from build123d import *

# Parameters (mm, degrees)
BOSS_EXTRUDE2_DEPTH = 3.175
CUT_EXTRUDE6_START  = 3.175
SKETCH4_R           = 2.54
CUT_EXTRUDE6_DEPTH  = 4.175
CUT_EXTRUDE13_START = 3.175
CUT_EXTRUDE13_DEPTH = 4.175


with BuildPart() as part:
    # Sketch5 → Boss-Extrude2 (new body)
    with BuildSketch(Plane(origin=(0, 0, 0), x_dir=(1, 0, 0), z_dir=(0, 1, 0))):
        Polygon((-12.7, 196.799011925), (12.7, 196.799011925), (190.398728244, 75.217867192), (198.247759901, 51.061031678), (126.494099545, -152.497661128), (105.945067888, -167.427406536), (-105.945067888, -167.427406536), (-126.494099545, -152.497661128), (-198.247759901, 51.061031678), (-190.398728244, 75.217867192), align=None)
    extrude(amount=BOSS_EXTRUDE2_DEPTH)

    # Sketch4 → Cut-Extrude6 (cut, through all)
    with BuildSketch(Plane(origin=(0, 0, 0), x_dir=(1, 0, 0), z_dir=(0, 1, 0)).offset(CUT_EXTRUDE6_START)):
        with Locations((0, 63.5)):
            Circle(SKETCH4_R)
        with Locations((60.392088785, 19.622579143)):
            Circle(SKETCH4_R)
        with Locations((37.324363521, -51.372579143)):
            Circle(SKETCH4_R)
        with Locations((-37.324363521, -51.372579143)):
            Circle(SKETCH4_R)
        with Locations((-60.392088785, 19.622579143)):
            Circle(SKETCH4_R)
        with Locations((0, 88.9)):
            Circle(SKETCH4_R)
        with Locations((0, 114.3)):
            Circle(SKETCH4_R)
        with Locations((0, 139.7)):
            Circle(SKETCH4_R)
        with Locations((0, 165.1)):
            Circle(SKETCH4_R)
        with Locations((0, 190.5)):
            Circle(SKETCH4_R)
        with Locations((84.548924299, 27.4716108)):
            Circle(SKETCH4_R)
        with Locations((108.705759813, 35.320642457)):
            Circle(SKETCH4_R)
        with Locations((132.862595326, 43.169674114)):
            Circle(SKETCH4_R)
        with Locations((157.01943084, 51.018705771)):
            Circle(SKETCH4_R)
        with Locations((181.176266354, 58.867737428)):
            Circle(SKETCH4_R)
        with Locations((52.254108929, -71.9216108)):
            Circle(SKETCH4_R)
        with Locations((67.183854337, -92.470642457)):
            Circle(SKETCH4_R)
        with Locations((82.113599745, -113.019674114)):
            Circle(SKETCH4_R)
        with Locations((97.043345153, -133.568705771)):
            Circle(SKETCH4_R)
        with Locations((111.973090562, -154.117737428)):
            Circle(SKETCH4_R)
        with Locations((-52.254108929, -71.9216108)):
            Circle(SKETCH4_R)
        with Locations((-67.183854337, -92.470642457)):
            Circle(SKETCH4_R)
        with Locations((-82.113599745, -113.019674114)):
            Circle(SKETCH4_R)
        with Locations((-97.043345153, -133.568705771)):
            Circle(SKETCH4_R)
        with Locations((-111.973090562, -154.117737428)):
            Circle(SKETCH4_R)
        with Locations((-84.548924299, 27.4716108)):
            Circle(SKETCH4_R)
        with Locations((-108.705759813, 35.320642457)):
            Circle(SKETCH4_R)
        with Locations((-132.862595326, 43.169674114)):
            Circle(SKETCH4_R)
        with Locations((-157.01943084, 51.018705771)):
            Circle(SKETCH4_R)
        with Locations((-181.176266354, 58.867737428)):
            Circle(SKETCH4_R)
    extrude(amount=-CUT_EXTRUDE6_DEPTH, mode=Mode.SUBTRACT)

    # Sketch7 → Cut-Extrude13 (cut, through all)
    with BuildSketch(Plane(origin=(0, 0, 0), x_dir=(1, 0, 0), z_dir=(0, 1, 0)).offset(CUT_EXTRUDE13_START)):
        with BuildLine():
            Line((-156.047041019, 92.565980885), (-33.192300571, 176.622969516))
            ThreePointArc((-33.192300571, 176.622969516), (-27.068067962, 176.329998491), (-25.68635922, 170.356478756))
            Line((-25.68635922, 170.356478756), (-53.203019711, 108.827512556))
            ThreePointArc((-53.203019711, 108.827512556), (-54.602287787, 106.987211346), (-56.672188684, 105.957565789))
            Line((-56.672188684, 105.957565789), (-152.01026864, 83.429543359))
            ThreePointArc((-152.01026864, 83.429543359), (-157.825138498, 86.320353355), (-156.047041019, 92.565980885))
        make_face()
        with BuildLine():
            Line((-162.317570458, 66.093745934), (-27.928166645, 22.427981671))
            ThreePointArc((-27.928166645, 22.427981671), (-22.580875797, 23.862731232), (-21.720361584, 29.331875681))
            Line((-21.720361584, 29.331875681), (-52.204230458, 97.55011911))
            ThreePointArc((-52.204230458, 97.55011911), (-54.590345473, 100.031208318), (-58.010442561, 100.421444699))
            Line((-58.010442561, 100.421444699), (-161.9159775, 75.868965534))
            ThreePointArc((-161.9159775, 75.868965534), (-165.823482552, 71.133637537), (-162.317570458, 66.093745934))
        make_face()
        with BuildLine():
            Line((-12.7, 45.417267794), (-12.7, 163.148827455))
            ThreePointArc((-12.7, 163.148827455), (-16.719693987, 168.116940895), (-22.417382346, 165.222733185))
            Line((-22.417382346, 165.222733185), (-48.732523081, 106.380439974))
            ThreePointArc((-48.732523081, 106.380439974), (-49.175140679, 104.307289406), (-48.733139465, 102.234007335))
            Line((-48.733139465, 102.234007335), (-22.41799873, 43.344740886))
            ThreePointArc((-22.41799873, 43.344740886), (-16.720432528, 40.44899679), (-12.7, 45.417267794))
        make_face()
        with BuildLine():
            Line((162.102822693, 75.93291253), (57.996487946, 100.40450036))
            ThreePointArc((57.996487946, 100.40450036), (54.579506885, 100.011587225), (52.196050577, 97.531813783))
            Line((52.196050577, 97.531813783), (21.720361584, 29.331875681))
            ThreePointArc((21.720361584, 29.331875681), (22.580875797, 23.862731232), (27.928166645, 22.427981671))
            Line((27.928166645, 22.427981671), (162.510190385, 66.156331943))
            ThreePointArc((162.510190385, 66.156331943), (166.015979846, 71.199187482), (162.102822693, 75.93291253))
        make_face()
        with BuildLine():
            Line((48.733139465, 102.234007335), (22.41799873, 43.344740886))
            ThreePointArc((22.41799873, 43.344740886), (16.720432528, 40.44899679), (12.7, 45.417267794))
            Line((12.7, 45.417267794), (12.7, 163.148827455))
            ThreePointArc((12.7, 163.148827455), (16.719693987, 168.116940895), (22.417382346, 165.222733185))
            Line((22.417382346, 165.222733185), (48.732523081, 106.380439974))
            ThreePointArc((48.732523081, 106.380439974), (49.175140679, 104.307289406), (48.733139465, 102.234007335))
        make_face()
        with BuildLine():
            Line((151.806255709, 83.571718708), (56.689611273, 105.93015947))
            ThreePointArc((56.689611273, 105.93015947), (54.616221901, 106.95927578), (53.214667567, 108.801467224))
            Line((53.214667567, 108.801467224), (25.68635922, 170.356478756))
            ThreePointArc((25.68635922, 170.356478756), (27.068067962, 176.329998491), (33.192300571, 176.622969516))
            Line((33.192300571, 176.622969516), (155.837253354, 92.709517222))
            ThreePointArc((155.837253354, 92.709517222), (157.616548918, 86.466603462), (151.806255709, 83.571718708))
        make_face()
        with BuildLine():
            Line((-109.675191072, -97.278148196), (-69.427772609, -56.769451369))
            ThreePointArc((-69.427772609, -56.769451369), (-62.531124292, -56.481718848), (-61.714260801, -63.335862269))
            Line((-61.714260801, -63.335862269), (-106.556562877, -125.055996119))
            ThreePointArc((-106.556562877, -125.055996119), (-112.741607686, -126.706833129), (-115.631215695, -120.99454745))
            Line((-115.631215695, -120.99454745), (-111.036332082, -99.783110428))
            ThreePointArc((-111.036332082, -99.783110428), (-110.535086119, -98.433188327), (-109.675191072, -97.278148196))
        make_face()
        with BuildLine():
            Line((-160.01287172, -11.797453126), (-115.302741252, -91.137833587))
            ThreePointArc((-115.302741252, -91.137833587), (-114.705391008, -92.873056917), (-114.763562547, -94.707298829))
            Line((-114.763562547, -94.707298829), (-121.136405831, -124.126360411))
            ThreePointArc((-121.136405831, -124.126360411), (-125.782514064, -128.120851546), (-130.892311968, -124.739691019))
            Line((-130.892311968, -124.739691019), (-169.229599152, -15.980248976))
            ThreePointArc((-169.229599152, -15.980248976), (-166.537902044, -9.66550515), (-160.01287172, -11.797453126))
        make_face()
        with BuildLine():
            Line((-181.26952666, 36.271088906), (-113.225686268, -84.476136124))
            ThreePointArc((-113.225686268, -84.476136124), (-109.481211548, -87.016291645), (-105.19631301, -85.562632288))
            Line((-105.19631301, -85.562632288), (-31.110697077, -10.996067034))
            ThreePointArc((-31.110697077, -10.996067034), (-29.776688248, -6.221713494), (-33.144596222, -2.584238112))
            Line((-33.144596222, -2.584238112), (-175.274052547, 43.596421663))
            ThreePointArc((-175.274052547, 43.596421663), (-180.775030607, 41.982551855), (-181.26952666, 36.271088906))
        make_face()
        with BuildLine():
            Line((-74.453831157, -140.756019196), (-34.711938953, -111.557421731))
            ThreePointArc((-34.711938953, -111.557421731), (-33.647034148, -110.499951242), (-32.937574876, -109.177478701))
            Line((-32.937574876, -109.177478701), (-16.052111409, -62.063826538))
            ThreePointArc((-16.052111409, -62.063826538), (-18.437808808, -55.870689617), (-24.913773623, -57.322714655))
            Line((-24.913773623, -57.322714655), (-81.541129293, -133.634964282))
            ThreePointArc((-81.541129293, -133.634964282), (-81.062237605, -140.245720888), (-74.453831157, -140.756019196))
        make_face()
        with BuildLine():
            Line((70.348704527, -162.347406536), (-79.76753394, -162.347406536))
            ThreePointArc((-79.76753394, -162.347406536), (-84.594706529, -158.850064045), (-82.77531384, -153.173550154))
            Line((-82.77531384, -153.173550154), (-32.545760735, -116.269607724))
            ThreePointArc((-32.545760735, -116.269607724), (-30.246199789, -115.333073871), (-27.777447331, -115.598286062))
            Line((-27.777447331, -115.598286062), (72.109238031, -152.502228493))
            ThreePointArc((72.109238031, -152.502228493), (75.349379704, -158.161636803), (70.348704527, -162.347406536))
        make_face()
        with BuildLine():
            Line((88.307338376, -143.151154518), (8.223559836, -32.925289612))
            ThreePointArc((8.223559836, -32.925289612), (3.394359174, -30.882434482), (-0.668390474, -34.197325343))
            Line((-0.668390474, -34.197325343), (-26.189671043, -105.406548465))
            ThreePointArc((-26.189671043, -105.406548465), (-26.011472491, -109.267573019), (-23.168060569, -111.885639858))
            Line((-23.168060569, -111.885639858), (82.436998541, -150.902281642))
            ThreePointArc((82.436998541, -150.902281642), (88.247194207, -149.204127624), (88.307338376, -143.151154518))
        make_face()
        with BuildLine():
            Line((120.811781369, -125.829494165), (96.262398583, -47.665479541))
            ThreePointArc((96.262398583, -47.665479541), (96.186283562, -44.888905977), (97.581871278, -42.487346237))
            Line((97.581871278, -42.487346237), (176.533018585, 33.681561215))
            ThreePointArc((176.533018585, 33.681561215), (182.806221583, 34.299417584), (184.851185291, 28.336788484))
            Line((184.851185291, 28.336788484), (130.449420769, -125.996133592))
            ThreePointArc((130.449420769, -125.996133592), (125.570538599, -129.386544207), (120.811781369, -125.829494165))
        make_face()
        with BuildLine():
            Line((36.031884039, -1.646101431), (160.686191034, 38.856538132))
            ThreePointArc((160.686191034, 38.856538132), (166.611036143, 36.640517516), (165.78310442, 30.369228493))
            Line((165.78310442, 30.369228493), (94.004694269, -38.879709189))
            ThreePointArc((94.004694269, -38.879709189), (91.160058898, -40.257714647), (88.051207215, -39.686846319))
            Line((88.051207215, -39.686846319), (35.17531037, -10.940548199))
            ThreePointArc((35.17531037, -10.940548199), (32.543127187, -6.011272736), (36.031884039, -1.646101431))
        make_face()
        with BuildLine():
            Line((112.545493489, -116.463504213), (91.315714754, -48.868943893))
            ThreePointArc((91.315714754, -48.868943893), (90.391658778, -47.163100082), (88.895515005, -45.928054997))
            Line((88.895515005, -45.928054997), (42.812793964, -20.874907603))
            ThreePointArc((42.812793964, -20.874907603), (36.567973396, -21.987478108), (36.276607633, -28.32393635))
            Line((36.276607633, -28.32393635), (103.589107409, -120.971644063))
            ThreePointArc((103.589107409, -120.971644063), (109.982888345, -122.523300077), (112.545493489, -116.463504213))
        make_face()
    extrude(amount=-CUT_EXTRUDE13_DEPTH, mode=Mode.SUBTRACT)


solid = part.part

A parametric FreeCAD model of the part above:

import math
import FreeCAD as App
import Part
import Sketcher

V = App.Vector
Q = App.Units.Quantity

doc = App.newDocument("Part")
body = doc.addObject("PartDesign::Body", "Body")

# Sketch on XZ plane
sketch1 = body.newObject("Sketcher::SketchObject", "Sketch")
sketch1.AttachmentSupport = (doc.getObject("XZ_Plane"), [""])
sketch1.MapMode = "FlatFace"
sketch1.addGeometry([
    Part.LineSegment(V(13, -197, 0), V(-13, -197, 0)),  # 0
    Part.LineSegment(V(-13, -197, 0), V(-190, -75, 0)),  # 1
    Part.LineSegment(V(-190, -75, 0), V(-198, -51, 0)),  # 2
    Part.LineSegment(V(-198, -51, 0), V(-126, 152, 0)),  # 3
    Part.LineSegment(V(-126, 152, 0), V(-106, 167, 0)),  # 4
    Part.LineSegment(V(-106, 167, 0), V(106, 167, 0)),  # 5
    Part.LineSegment(V(106, 167, 0), V(126, 152, 0)),  # 6
    Part.LineSegment(V(126, 152, 0), V(198, -51, 0)),  # 7
    Part.LineSegment(V(198, -51, 0), V(190, -75, 0)),  # 8
    Part.LineSegment(V(190, -75, 0), V(13, -197, 0)),  # 9
], False)
sketch1.addConstraint([
    Sketcher.Constraint("Coincident", 0, 2, 1, 1),
    Sketcher.Constraint("Coincident", 1, 2, 2, 1),
    Sketcher.Constraint("Coincident", 2, 2, 3, 1),
    Sketcher.Constraint("Coincident", 3, 2, 4, 1),
    Sketcher.Constraint("Coincident", 4, 2, 5, 1),
    Sketcher.Constraint("Coincident", 5, 2, 6, 1),
    Sketcher.Constraint("Coincident", 6, 2, 7, 1),
    Sketcher.Constraint("Coincident", 7, 2, 8, 1),
    Sketcher.Constraint("Coincident", 8, 2, 9, 1),
    Sketcher.Constraint("Coincident", 9, 2, 0, 1),
    Sketcher.Constraint("Horizontal", 0),
    Sketcher.Constraint("Horizontal", 5),
    Sketcher.Constraint("Symmetric", 3, 2, 6, 2, -2),
    Sketcher.Constraint("Symmetric", 2, 2, 7, 2, -2),
    Sketcher.Constraint("Symmetric", 1, 2, 8, 2, -2),
    Sketcher.Constraint("Equal", 2, 4),
    Sketcher.Constraint("Equal", 4, 6),
    Sketcher.Constraint("Equal", 1, 9),
    Sketcher.Constraint("DistanceX", 0, 2, 0, 1, Q("1 in")),
    Sketcher.Constraint("Distance", 2, Q("1 in")),
    Sketcher.Constraint("Angle", 2, Q("108 deg")),
    Sketcher.Constraint("Angle", 4, Q("36 deg")),
    Sketcher.Constraint("DistanceX", 3, 2, -1, 1, Q("126.4941 mm")),
    Sketcher.Constraint("Distance", 3, Q("215.834958 mm")),
    Sketcher.Constraint("DistanceY", 0, 2, -1, 1, Q("196.799012 mm")),
    Sketcher.Constraint("DistanceX", 1, 2, -1, 1, Q("190.398728 mm")),
    Sketcher.Constraint("DistanceY", 2, 2, -1, 1, Q("51.061032 mm")),
])
pad1 = body.newObject("PartDesign::Pad", "Pad")
pad1.Profile = sketch1
pad1.Length = Q("0.125 in")
pad1.Reversed = True

# Sketch on XZ plane
sketch2 = body.newObject("Sketcher::SketchObject", "Sketch001")
sketch2.AttachmentSupport = (doc.getObject("XZ_Plane"), [""])
sketch2.MapMode = "FlatFace"
sketch2.AttachmentOffset = App.Placement(V(0, 0, -0.125 * 25.4), App.Rotation())
sketch2.addGeometry([
    Part.Circle(V(0, -63.5, 0), V(0, 0, 1), 2.5),  # 0
    Part.Circle(V(60.4, -19.6, 0), V(0, 0, 1), 2.5),  # 1
    Part.Circle(V(37.3, 51.4, 0), V(0, 0, 1), 2.5),  # 2
    Part.Circle(V(-37.3, 51.4, 0), V(0, 0, 1), 2.5),  # 3
    Part.Circle(V(-60.4, -19.6, 0), V(0, 0, 1), 2.5),  # 4
    Part.Circle(V(0, -88.9, 0), V(0, 0, 1), 2.5),  # 5
    Part.Circle(V(0, -114.3, 0), V(0, 0, 1), 2.5),  # 6
    Part.Circle(V(0, -139.7, 0), V(0, 0, 1), 2.5),  # 7
    Part.Circle(V(0, -165.1, 0), V(0, 0, 1), 2.5),  # 8
    Part.Circle(V(0, -190.5, 0), V(0, 0, 1), 2.5),  # 9
    Part.Circle(V(84.5, -27.5, 0), V(0, 0, 1), 2.5),  # 10
    Part.Circle(V(108.7, -35.3, 0), V(0, 0, 1), 2.5),  # 11
    Part.Circle(V(132.9, -43.2, 0), V(0, 0, 1), 2.5),  # 12
    Part.Circle(V(157, -51, 0), V(0, 0, 1), 2.5),  # 13
    Part.Circle(V(181.2, -58.9, 0), V(0, 0, 1), 2.5),  # 14
    Part.Circle(V(52.3, 71.9, 0), V(0, 0, 1), 2.5),  # 15
    Part.Circle(V(67.2, 92.5, 0), V(0, 0, 1), 2.5),  # 16
    Part.Circle(V(82.1, 113, 0), V(0, 0, 1), 2.5),  # 17
    Part.Circle(V(97, 133.6, 0), V(0, 0, 1), 2.5),  # 18
    Part.Circle(V(112, 154.1, 0), V(0, 0, 1), 2.5),  # 19
    Part.Circle(V(-52.3, 71.9, 0), V(0, 0, 1), 2.5),  # 20
    Part.Circle(V(-67.2, 92.5, 0), V(0, 0, 1), 2.5),  # 21
    Part.Circle(V(-82.1, 113, 0), V(0, 0, 1), 2.5),  # 22
    Part.Circle(V(-97, 133.6, 0), V(0, 0, 1), 2.5),  # 23
    Part.Circle(V(-112, 154.1, 0), V(0, 0, 1), 2.5),  # 24
    Part.Circle(V(-84.5, -27.5, 0), V(0, 0, 1), 2.5),  # 25
    Part.Circle(V(-108.7, -35.3, 0), V(0, 0, 1), 2.5),  # 26
    Part.Circle(V(-132.9, -43.2, 0), V(0, 0, 1), 2.5),  # 27
    Part.Circle(V(-157, -51, 0), V(0, 0, 1), 2.5),  # 28
    Part.Circle(V(-181.2, -58.9, 0), V(0, 0, 1), 2.5),  # 29
], False)
sketch2.addConstraint([
    Sketcher.Constraint("Equal", 0, 1),
    Sketcher.Constraint("Equal", 1, 2),
    Sketcher.Constraint("Equal", 2, 3),
    Sketcher.Constraint("Equal", 3, 4),
    Sketcher.Constraint("Equal", 4, 5),
    Sketcher.Constraint("Equal", 5, 6),
    Sketcher.Constraint("Equal", 6, 7),
    Sketcher.Constraint("Equal", 7, 8),
    Sketcher.Constraint("Equal", 8, 9),
    Sketcher.Constraint("Equal", 9, 10),
    Sketcher.Constraint("Equal", 10, 11),
    Sketcher.Constraint("Equal", 11, 12),
    Sketcher.Constraint("Equal", 12, 13),
    Sketcher.Constraint("Equal", 13, 14),
    Sketcher.Constraint("Equal", 14, 15),
    Sketcher.Constraint("Equal", 15, 16),
    Sketcher.Constraint("Equal", 16, 17),
    Sketcher.Constraint("Equal", 17, 18),
    Sketcher.Constraint("Equal", 18, 19),
    Sketcher.Constraint("Equal", 19, 20),
    Sketcher.Constraint("Equal", 20, 21),
    Sketcher.Constraint("Equal", 21, 22),
    Sketcher.Constraint("Equal", 22, 23),
    Sketcher.Constraint("Equal", 23, 24),
    Sketcher.Constraint("Equal", 24, 25),
    Sketcher.Constraint("Equal", 25, 26),
    Sketcher.Constraint("Equal", 26, 27),
    Sketcher.Constraint("Equal", 27, 28),
    Sketcher.Constraint("Equal", 28, 29),
    Sketcher.Constraint("Symmetric", 2, 3, 3, 3, -2),
    Sketcher.Constraint("Symmetric", 1, 3, 4, 3, -2),
    Sketcher.Constraint("Symmetric", 15, 3, 20, 3, -2),
    Sketcher.Constraint("Symmetric", 16, 3, 21, 3, -2),
    Sketcher.Constraint("Symmetric", 17, 3, 22, 3, -2),
    Sketcher.Constraint("Symmetric", 18, 3, 23, 3, -2),
    Sketcher.Constraint("Symmetric", 19, 3, 24, 3, -2),
    Sketcher.Constraint("Symmetric", 10, 3, 25, 3, -2),
    Sketcher.Constraint("Symmetric", 11, 3, 26, 3, -2),
    Sketcher.Constraint("Symmetric", 12, 3, 27, 3, -2),
    Sketcher.Constraint("Symmetric", 13, 3, 28, 3, -2),
    Sketcher.Constraint("Symmetric", 14, 3, 29, 3, -2),
    Sketcher.Constraint("PointOnObject", 0, 3, -2),
    Sketcher.Constraint("PointOnObject", 5, 3, -2),
    Sketcher.Constraint("PointOnObject", 6, 3, -2),
    Sketcher.Constraint("PointOnObject", 7, 3, -2),
    Sketcher.Constraint("PointOnObject", 8, 3, -2),
    Sketcher.Constraint("PointOnObject", 9, 3, -2),
    Sketcher.Constraint("Diameter", 0, Q("0.2 in")),
    Sketcher.Constraint("DistanceY", 5, 3, 0, 3, Q("1 in")),
    Sketcher.Constraint("DistanceY", 6, 3, 5, 3, Q("1 in")),
    Sketcher.Constraint("DistanceY", 7, 3, 6, 3, Q("1 in")),
    Sketcher.Constraint("DistanceY", 8, 3, 7, 3, Q("1 in")),
    Sketcher.Constraint("DistanceY", 9, 3, 8, 3, Q("1 in")),
    Sketcher.Constraint("DistanceY", 0, 3, -1, 1, Q("2.5 in")),
    Sketcher.Constraint("DistanceX", -1, 1, 17, 3, Q("82.1136 mm")),
    Sketcher.Constraint("DistanceX", -1, 1, 1, 3, Q("60.392089 mm")),
    Sketcher.Constraint("DistanceY", 1, 3, -1, 1, Q("19.622579 mm")),
    Sketcher.Constraint("DistanceY", -1, 1, 2, 3, Q("51.372579 mm")),
    Sketcher.Constraint("DistanceY", 10, 3, -1, 1, Q("27.471611 mm")),
    Sketcher.Constraint("DistanceX", -1, 1, 11, 3, Q("108.70576 mm")),
    Sketcher.Constraint("DistanceX", -1, 1, 13, 3, Q("157.019431 mm")),
    Sketcher.Constraint("DistanceX", -1, 1, 15, 3, Q("52.254109 mm")),
    Sketcher.Constraint("DistanceY", -1, 1, 15, 3, Q("71.921611 mm")),
    Sketcher.Constraint("DistanceX", -1, 1, 19, 3, Q("111.973091 mm")),
    Sketcher.Constraint("DistanceX", 2, 3, 10, 3, Q("47.224561 mm")),
    Sketcher.Constraint("DistanceY", 11, 3, 10, 3, Q("7.849032 mm")),
    Sketcher.Constraint("DistanceY", 12, 3, 11, 3, Q("7.849032 mm")),
    Sketcher.Constraint("DistanceX", 10, 3, 12, 3, Q("48.313671 mm")),
    Sketcher.Constraint("DistanceY", 13, 3, 12, 3, Q("7.849032 mm")),
    Sketcher.Constraint("DistanceY", 14, 3, 13, 3, Q("7.849032 mm")),
    Sketcher.Constraint("DistanceX", 12, 3, 14, 3, Q("48.313671 mm")),
    Sketcher.Constraint("DistanceY", 15, 3, 16, 3, Q("20.549032 mm")),
    Sketcher.Constraint("DistanceX", 2, 3, 16, 3, Q("29.859491 mm")),
    Sketcher.Constraint("DistanceY", 16, 3, 17, 3, Q("20.549032 mm")),
    Sketcher.Constraint("DistanceY", 17, 3, 18, 3, Q("20.549032 mm")),
    Sketcher.Constraint("DistanceX", 16, 3, 18, 3, Q("29.859491 mm")),
    Sketcher.Constraint("DistanceX", 3, 3, 18, 3, Q("134.367709 mm")),
    Sketcher.Constraint("DistanceY", 18, 3, 19, 3, Q("20.549032 mm")),
])
pocket1 = body.newObject("PartDesign::Pocket", "Pocket")
pocket1.Profile = sketch2
pocket1.Type = "ThroughAll"
pocket1.Reversed = True

# Sketch on XZ plane
sketch3 = body.newObject("Sketcher::SketchObject", "Sketch002")
sketch3.AttachmentSupport = (doc.getObject("XZ_Plane"), [""])
sketch3.MapMode = "FlatFace"
sketch3.AttachmentOffset = App.Placement(V(0, 0, -0.125 * 25.4), App.Rotation())
sketch3.addGeometry([
    Part.LineSegment(V(-33.192301, -176.62297, 0), V(-156.047041, -92.565981, 0)),  # 0
    Part.ArcOfCircle(Part.Circle(V(-153.178482, -88.373396, 0), V(0, 0, 1), 5.08), math.radians(76.705091), math.radians(235.620137)),  # 1
    Part.LineSegment(V(-152.010269, -83.429543, 0), V(-56.672189, -105.957566, 0)),  # 2
    Part.ArcOfCircle(Part.Circle(V(-57.840402, -110.901418, 0), V(0, 0, 1), 5.08), math.radians(24.094897), math.radians(76.705091)),  # 3
    Part.LineSegment(V(-53.20302, -108.827513, 0), V(-25.686359, -170.356479, 0)),  # 4
    Part.ArcOfCircle(Part.Circle(V(-30.323742, -172.430384, 0), V(0, 0, 1), 5.08), math.radians(-124.379863), math.radians(24.094897)),  # 5
    Part.LineSegment(V(-162.31757, -66.093746, 0), V(-27.928167, -22.427982, 0)),  # 6
    Part.ArcOfCircle(Part.Circle(V(-26.35836, -27.259349, 0), V(0, 0, 1), 5.08), math.radians(-24.077863), math.radians(108)),  # 7
    Part.LineSegment(V(-21.720362, -29.331876, 0), V(-52.20423, -97.550119, 0)),  # 8
    Part.ArcOfCircle(Part.Circle(V(-56.842229, -95.477592, 0), V(0, 0, 1), 5.08), math.radians(-103.294909), math.radians(-24.077863)),  # 9
    Part.LineSegment(V(-58.010443, -100.421445, 0), V(-161.915977, -75.868966, 0)),  # 10
    Part.ArcOfCircle(Part.Circle(V(-160.747764, -70.925113, 0), V(0, 0, 1), 5.08), math.radians(108), math.radians(256.705091)),  # 11
    Part.LineSegment(V(-12.7, -45.417268, 0), V(-12.7, -163.148827, 0)),  # 12
    Part.ArcOfCircle(Part.Circle(V(-17.78, -163.148827, 0), V(0, 0, 1), 5.08), math.radians(-155.905103), math.radians(0)),  # 13
    Part.LineSegment(V(-22.417382, -165.222733, 0), V(-48.732523, -106.38044, 0)),  # 14
    Part.ArcOfCircle(Part.Circle(V(-44.095141, -104.306534, 0), V(0, 0, 1), 5.08), math.radians(155.922137), math.radians(204.094897)),  # 15
    Part.LineSegment(V(-48.733139, -102.234007, 0), V(-22.417999, -43.344741, 0)),  # 16
    Part.ArcOfCircle(Part.Circle(V(-17.78, -45.417268, 0), V(0, 0, 1), 5.08), math.radians(0), math.radians(155.922137)),  # 17
    Part.LineSegment(V(162.102823, -75.932913, 0), V(57.996488, -100.4045, 0)),  # 18
    Part.ArcOfCircle(Part.Circle(V(56.834049, -95.459287, 0), V(0, 0, 1), 5.08), math.radians(-155.922137), math.radians(-76.772007)),  # 19
    Part.LineSegment(V(52.196051, -97.531814, 0), V(21.720362, -29.331876, 0)),  # 20
    Part.ArcOfCircle(Part.Circle(V(26.35836, -27.259349, 0), V(0, 0, 1), 5.08), math.radians(72), math.radians(204.077863)),  # 21
    Part.LineSegment(V(27.928167, -22.427982, 0), V(162.51019, -66.156332, 0)),  # 22
    Part.ArcOfCircle(Part.Circle(V(160.940384, -70.987699, 0), V(0, 0, 1), 5.08), math.radians(-76.772007), math.radians(72)),  # 23
    Part.LineSegment(V(22.417999, -43.344741, 0), V(48.733139, -102.234007, 0)),  # 24
    Part.ArcOfCircle(Part.Circle(V(44.095141, -104.306534, 0), V(0, 0, 1), 5.08), math.radians(-24.094897), math.radians(24.077863)),  # 25
    Part.LineSegment(V(48.732523, -106.38044, 0), V(22.417382, -165.222733, 0)),  # 26
    Part.ArcOfCircle(Part.Circle(V(17.78, -163.148827, 0), V(0, 0, 1), 5.08), math.radians(-180), math.radians(-24.094897)),  # 27
    Part.LineSegment(V(12.7, -163.148827, 0), V(12.7, -45.417268, 0)),  # 28
    Part.ArcOfCircle(Part.Circle(V(17.78, -45.417268, 0), V(0, 0, 1), 5.08), math.radians(24.077863), math.radians(180)),  # 29
    Part.LineSegment(V(56.689611, -105.930159, 0), V(151.806256, -83.571719, 0)),  # 30
    Part.ArcOfCircle(Part.Circle(V(152.968694, -88.516932, 0), V(0, 0, 1), 5.08), math.radians(-55.620137), math.radians(103.227993)),  # 31
    Part.LineSegment(V(155.837253, -92.709517, 0), V(33.192301, -176.62297, 0)),  # 32
    Part.ArcOfCircle(Part.Circle(V(30.323742, -172.430384, 0), V(0, 0, 1), 5.08), math.radians(155.905103), math.radians(304.379863)),  # 33
    Part.LineSegment(V(25.686359, -170.356479, 0), V(53.214668, -108.801467, 0)),  # 34
    Part.ArcOfCircle(Part.Circle(V(57.85205, -110.875373, 0), V(0, 0, 1), 5.08), math.radians(103.227993), math.radians(155.905103)),  # 35
    Part.LineSegment(V(-69.427773, 56.769451, 0), V(-109.675191, 97.278148, 0)),  # 36
    Part.ArcOfCircle(Part.Circle(V(-106.071486, 100.85861, 0), V(0, 0, 1), 5.08), math.radians(-167.777271), math.radians(-135.185374)),  # 37
    Part.LineSegment(V(-111.036332, 99.78311, 0), V(-115.631216, 120.994547, 0)),  # 38
    Part.ArcOfCircle(Part.Circle(V(-110.666369, 122.070047, 0), V(0, 0, 1), 5.08), math.radians(36), math.radians(192.222729)),  # 39
    Part.LineSegment(V(-106.556563, 125.055996, 0), V(-61.714261, 63.335862, 0)),  # 40
    Part.ArcOfCircle(Part.Circle(V(-65.824067, 60.349913, 0), V(0, 0, 1), 5.08), math.radians(-135.185374), math.radians(36)),  # 41
    Part.LineSegment(V(-115.302741, 91.137834, 0), V(-160.012872, 11.797453, 0)),  # 42
    Part.ArcOfCircle(Part.Circle(V(-164.43854, 14.291419, 0), V(0, 0, 1), 5.08), math.radians(160.582641), math.radians(330.59774)),  # 43
    Part.LineSegment(V(-169.229599, 15.980249, 0), V(-130.892312, 124.739691, 0)),  # 44
    Part.ArcOfCircle(Part.Circle(V(-126.101252, 123.050861, 0), V(0, 0, 1), 5.08), math.radians(12.222729), math.radians(160.582641)),  # 45
    Part.LineSegment(V(-121.136406, 124.12636, 0), V(-114.763563, 94.707299, 0)),  # 46
    Part.ArcOfCircle(Part.Circle(V(-119.728409, 93.631799, 0), V(0, 0, 1), 5.08), math.radians(-29.40226), math.radians(12.222729)),  # 47
    Part.LineSegment(V(-181.269527, -36.271089, 0), V(-113.225686, 84.476136, 0)),  # 48
    Part.ArcOfCircle(Part.Circle(V(-108.800018, 81.98217, 0), V(0, 0, 1), 5.08), math.radians(44.814626), math.radians(150.59774)),  # 49
    Part.LineSegment(V(-105.196313, 85.562632, 0), V(-31.110697, 10.996067, 0)),  # 50
    Part.ArcOfCircle(Part.Circle(V(-34.714403, 7.415605, 0), V(0, 0, 1), 5.08), math.radians(-72), math.radians(44.814626)),  # 51
    Part.LineSegment(V(-33.144596, 2.584238, 0), V(-175.274053, -43.596422, 0)),  # 52
    Part.ArcOfCircle(Part.Circle(V(-176.843859, -38.765055, 0), V(0, 0, 1), 5.08), math.radians(150.59774), math.radians(288)),  # 53
    Part.LineSegment(V(-74.453831, 140.756019, 0), V(-34.711939, 111.557422, 0)),  # 54
    Part.ArcOfCircle(Part.Circle(V(-37.719719, 107.463565, 0), V(0, 0, 1), 5.08), math.radians(19.717605), math.radians(53.69506)),  # 55
    Part.LineSegment(V(-32.937575, 109.177479, 0), V(-16.052111, 62.063827, 0)),  # 56
    Part.ArcOfCircle(Part.Circle(V(-20.834255, 60.349913, 0), V(0, 0, 1), 5.08), math.radians(-143.42281), math.radians(19.717605)),  # 57
    Part.LineSegment(V(-24.913774, 57.322715, 0), V(-81.541129, 133.634964, 0)),  # 58
    Part.ArcOfCircle(Part.Circle(V(-77.461611, 136.662163, 0), V(0, 0, 1), 5.08), math.radians(53.69506), math.radians(216.57719)),  # 59
    Part.LineSegment(V(-79.767534, 162.347407, 0), V(70.348705, 162.347407, 0)),  # 60
    Part.ArcOfCircle(Part.Circle(V(70.348705, 157.267407, 0), V(0, 0, 1), 5.08), math.radians(-69.722842), math.radians(90)),  # 61
    Part.LineSegment(V(72.109238, 152.502228, 0), V(-27.777447, 115.598286, 0)),  # 62
    Part.ArcOfCircle(Part.Circle(V(-29.537981, 120.363464, 0), V(0, 0, 1), 5.08), math.radians(-126.30494), math.radians(-69.722842)),  # 63
    Part.LineSegment(V(-32.545761, 116.269608, 0), V(-82.775314, 153.17355, 0)),  # 64
    Part.ArcOfCircle(Part.Circle(V(-79.767534, 157.267407, 0), V(0, 0, 1), 5.08), math.radians(90), math.radians(233.69506)),  # 65
    Part.LineSegment(V(88.307338, 143.151155, 0), V(8.22356, 32.92529, 0)),  # 66
    Part.ArcOfCircle(Part.Circle(V(4.113754, 35.911239, 0), V(0, 0, 1), 5.08), math.radians(-160.282395), math.radians(-36)),  # 67
    Part.LineSegment(V(-0.66839, 34.197325, 0), V(-26.189671, 105.406548, 0)),  # 68
    Part.ArcOfCircle(Part.Circle(V(-21.407527, 107.120462, 0), V(0, 0, 1), 5.08), math.radians(110.277158), math.radians(199.717605)),  # 69
    Part.LineSegment(V(-23.168061, 111.88564, 0), V(82.436999, 150.902282, 0)),  # 70
    Part.ArcOfCircle(Part.Circle(V(84.197532, 146.137104, 0), V(0, 0, 1), 5.08), math.radians(-36), math.radians(110.277158)),  # 71
    Part.LineSegment(V(96.262399, 47.66548, 0), V(120.811781, 125.829494, 0)),  # 72
    Part.ArcOfCircle(Part.Circle(V(125.658361, 124.307303, 0), V(0, 0, 1), 5.08), math.radians(19.417359), math.radians(162.563787)),  # 73
    Part.LineSegment(V(130.449421, 125.996134, 0), V(184.851185, -28.336788, 0)),  # 74
    Part.ArcOfCircle(Part.Circle(V(180.060126, -30.025619, 0), V(0, 0, 1), 5.08), math.radians(-133.972451), math.radians(19.417359)),  # 75
    Part.LineSegment(V(176.533019, -33.681561, 0), V(97.581871, 42.487346, 0)),  # 76
    Part.ArcOfCircle(Part.Circle(V(101.108978, 46.143289, 0), V(0, 0, 1), 5.08), math.radians(162.563787), math.radians(226.027549)),  # 77
    Part.LineSegment(V(160.686191, -38.856538, 0), V(36.031884, 1.646101, 0)),  # 78
    Part.ArcOfCircle(Part.Circle(V(37.60169, 6.477469, 0), V(0, 0, 1), 5.08), math.radians(118.530979), math.radians(252)),  # 79
    Part.LineSegment(V(35.17531, 10.940548, 0), V(88.051207, 39.686846, 0)),  # 80
    Part.ArcOfCircle(Part.Circle(V(90.477587, 35.223767, 0), V(0, 0, 1), 5.08), math.radians(46.027549), math.radians(118.530979)),  # 81
    Part.LineSegment(V(94.004694, 38.879709, 0), V(165.783104, -30.369228, 0)),  # 82
    Part.ArcOfCircle(Part.Circle(V(162.255997, -34.025171, 0), V(0, 0, 1), 5.08), math.radians(-108), math.radians(46.027549)),  # 83
    Part.LineSegment(V(112.545493, 116.463504, 0), V(91.315715, 48.868944, 0)),  # 84
    Part.ArcOfCircle(Part.Circle(V(86.469135, 50.391135, 0), V(0, 0, 1), 5.08), math.radians(-61.469021), math.radians(-17.436213)),  # 85
    Part.LineSegment(V(88.895515, 45.928055, 0), V(42.812794, 20.874908, 0)),  # 86
    Part.ArcOfCircle(Part.Circle(V(40.386414, 25.337987, 0), V(0, 0, 1), 5.08), math.radians(144), math.radians(298.530979)),  # 87
    Part.LineSegment(V(36.276608, 28.323936, 0), V(103.589107, 120.971644, 0)),  # 88
    Part.ArcOfCircle(Part.Circle(V(107.698914, 117.985695, 0), V(0, 0, 1), 5.08), math.radians(-17.436213), math.radians(144)),  # 89
], False)
sketch3.addConstraint([
    Sketcher.Constraint("Coincident", 0, 2, 1, 2),
    Sketcher.Constraint("Coincident", 1, 1, 2, 1),
    Sketcher.Constraint("Coincident", 2, 2, 3, 2),
    Sketcher.Constraint("Coincident", 3, 1, 4, 1),
    Sketcher.Constraint("Coincident", 4, 2, 5, 2),
    Sketcher.Constraint("Coincident", 5, 1, 0, 1),
    Sketcher.Constraint("Coincident", 6, 2, 7, 2),
    Sketcher.Constraint("Coincident", 7, 1, 8, 1),
    Sketcher.Constraint("Coincident", 8, 2, 9, 2),
    Sketcher.Constraint("Coincident", 9, 1, 10, 1),
    Sketcher.Constraint("Coincident", 10, 2, 11, 2),
    Sketcher.Constraint("Coincident", 11, 1, 6, 1),
    Sketcher.Constraint("Coincident", 12, 2, 13, 2),
    Sketcher.Constraint("Coincident", 13, 1, 14, 1),
    Sketcher.Constraint("Coincident", 14, 2, 15, 2),
    Sketcher.Constraint("Coincident", 15, 1, 16, 1),
    Sketcher.Constraint("Coincident", 16, 2, 17, 2),
    Sketcher.Constraint("Coincident", 17, 1, 12, 1),
    Sketcher.Constraint("Coincident", 18, 2, 19, 2),
    Sketcher.Constraint("Coincident", 19, 1, 20, 1),
    Sketcher.Constraint("Coincident", 20, 2, 21, 2),
    Sketcher.Constraint("Coincident", 21, 1, 22, 1),
    Sketcher.Constraint("Coincident", 22, 2, 23, 2),
    Sketcher.Constraint("Coincident", 23, 1, 18, 1),
    Sketcher.Constraint("Coincident", 24, 2, 25, 2),
    Sketcher.Constraint("Coincident", 25, 1, 26, 1),
    Sketcher.Constraint("Coincident", 26, 2, 27, 2),
    Sketcher.Constraint("Coincident", 27, 1, 28, 1),
    Sketcher.Constraint("Coincident", 28, 2, 29, 2),
    Sketcher.Constraint("Coincident", 29, 1, 24, 1),
    Sketcher.Constraint("Coincident", 30, 2, 31, 2),
    Sketcher.Constraint("Coincident", 31, 1, 32, 1),
    Sketcher.Constraint("Coincident", 32, 2, 33, 2),
    Sketcher.Constraint("Coincident", 33, 1, 34, 1),
    Sketcher.Constraint("Coincident", 34, 2, 35, 2),
    Sketcher.Constraint("Coincident", 35, 1, 30, 1),
    Sketcher.Constraint("Coincident", 36, 2, 37, 2),
    Sketcher.Constraint("Coincident", 37, 1, 38, 1),
    Sketcher.Constraint("Coincident", 38, 2, 39, 2),
    Sketcher.Constraint("Coincident", 39, 1, 40, 1),
    Sketcher.Constraint("Coincident", 40, 2, 41, 2),
    Sketcher.Constraint("Coincident", 41, 1, 36, 1),
    Sketcher.Constraint("Coincident", 42, 2, 43, 2),
    Sketcher.Constraint("Coincident", 43, 1, 44, 1),
    Sketcher.Constraint("Coincident", 44, 2, 45, 2),
    Sketcher.Constraint("Coincident", 45, 1, 46, 1),
    Sketcher.Constraint("Coincident", 46, 2, 47, 2),
    Sketcher.Constraint("Coincident", 47, 1, 42, 1),
    Sketcher.Constraint("Coincident", 48, 2, 49, 2),
    Sketcher.Constraint("Coincident", 49, 1, 50, 1),
    Sketcher.Constraint("Coincident", 50, 2, 51, 2),
    Sketcher.Constraint("Coincident", 51, 1, 52, 1),
    Sketcher.Constraint("Coincident", 52, 2, 53, 2),
    Sketcher.Constraint("Coincident", 53, 1, 48, 1),
    Sketcher.Constraint("Coincident", 54, 2, 55, 2),
    Sketcher.Constraint("Coincident", 55, 1, 56, 1),
    Sketcher.Constraint("Coincident", 56, 2, 57, 2),
    Sketcher.Constraint("Coincident", 57, 1, 58, 1),
    Sketcher.Constraint("Coincident", 58, 2, 59, 2),
    Sketcher.Constraint("Coincident", 59, 1, 54, 1),
    Sketcher.Constraint("Coincident", 60, 2, 61, 2),
    Sketcher.Constraint("Coincident", 61, 1, 62, 1),
    Sketcher.Constraint("Coincident", 62, 2, 63, 2),
    Sketcher.Constraint("Coincident", 63, 1, 64, 1),
    Sketcher.Constraint("Coincident", 64, 2, 65, 2),
    Sketcher.Constraint("Coincident", 65, 1, 60, 1),
    Sketcher.Constraint("Coincident", 66, 2, 67, 2),
    Sketcher.Constraint("Coincident", 67, 1, 68, 1),
    Sketcher.Constraint("Coincident", 68, 2, 69, 2),
    Sketcher.Constraint("Coincident", 69, 1, 70, 1),
    Sketcher.Constraint("Coincident", 70, 2, 71, 2),
    Sketcher.Constraint("Coincident", 71, 1, 66, 1),
    Sketcher.Constraint("Coincident", 72, 2, 73, 2),
    Sketcher.Constraint("Coincident", 73, 1, 74, 1),
    Sketcher.Constraint("Coincident", 74, 2, 75, 2),
    Sketcher.Constraint("Coincident", 75, 1, 76, 1),
    Sketcher.Constraint("Coincident", 76, 2, 77, 2),
    Sketcher.Constraint("Coincident", 77, 1, 72, 1),
    Sketcher.Constraint("Coincident", 78, 2, 79, 2),
    Sketcher.Constraint("Coincident", 79, 1, 80, 1),
    Sketcher.Constraint("Coincident", 80, 2, 81, 2),
    Sketcher.Constraint("Coincident", 81, 1, 82, 1),
    Sketcher.Constraint("Coincident", 82, 2, 83, 2),
    Sketcher.Constraint("Coincident", 83, 1, 78, 1),
    Sketcher.Constraint("Coincident", 84, 2, 85, 2),
    Sketcher.Constraint("Coincident", 85, 1, 86, 1),
    Sketcher.Constraint("Coincident", 86, 2, 87, 2),
    Sketcher.Constraint("Coincident", 87, 1, 88, 1),
    Sketcher.Constraint("Coincident", 88, 2, 89, 2),
    Sketcher.Constraint("Coincident", 89, 1, 84, 1),
    Sketcher.Constraint("Vertical", 12),
    Sketcher.Constraint("Vertical", 28),
    Sketcher.Constraint("Horizontal", 60),
    Sketcher.Constraint("Radius", 1, Q("0.2 in")),
    Sketcher.Constraint("Radius", 3, Q("0.2 in")),
    Sketcher.Constraint("Radius", 5, Q("0.2 in")),
    Sketcher.Constraint("Radius", 7, Q("0.2 in")),
    Sketcher.Constraint("Radius", 9, Q("0.2 in")),
    Sketcher.Constraint("Radius", 11, Q("0.2 in")),
    Sketcher.Constraint("Radius", 13, Q("0.2 in")),
    Sketcher.Constraint("Radius", 15, Q("0.2 in")),
    Sketcher.Constraint("Radius", 17, Q("0.2 in")),
    Sketcher.Constraint("Radius", 19, Q("0.2 in")),
    Sketcher.Constraint("Radius", 21, Q("0.2 in")),
    Sketcher.Constraint("Radius", 23, Q("0.2 in")),
    Sketcher.Constraint("Radius", 25, Q("0.2 in")),
    Sketcher.Constraint("Radius", 27, Q("0.2 in")),
    Sketcher.Constraint("Radius", 29, Q("0.2 in")),
    Sketcher.Constraint("Radius", 31, Q("0.2 in")),
    Sketcher.Constraint("Radius", 33, Q("0.2 in")),
    Sketcher.Constraint("Radius", 35, Q("0.2 in")),
    Sketcher.Constraint("Radius", 37, Q("0.2 in")),
    Sketcher.Constraint("Radius", 39, Q("0.2 in")),
    Sketcher.Constraint("Radius", 41, Q("0.2 in")),
    Sketcher.Constraint("Radius", 43, Q("0.2 in")),
    Sketcher.Constraint("Radius", 45, Q("0.2 in")),
    Sketcher.Constraint("Radius", 47, Q("0.2 in")),
    Sketcher.Constraint("Radius", 49, Q("0.2 in")),
    Sketcher.Constraint("Radius", 51, Q("0.2 in")),
    Sketcher.Constraint("Radius", 53, Q("0.2 in")),
    Sketcher.Constraint("Radius", 55, Q("0.2 in")),
    Sketcher.Constraint("Radius", 57, Q("0.2 in")),
    Sketcher.Constraint("Radius", 59, Q("0.2 in")),
    Sketcher.Constraint("Radius", 61, Q("0.2 in")),
    Sketcher.Constraint("Radius", 63, Q("0.2 in")),
    Sketcher.Constraint("Radius", 65, Q("0.2 in")),
    Sketcher.Constraint("Radius", 67, Q("0.2 in")),
    Sketcher.Constraint("Radius", 69, Q("0.2 in")),
    Sketcher.Constraint("Radius", 71, Q("0.2 in")),
    Sketcher.Constraint("Radius", 73, Q("0.2 in")),
    Sketcher.Constraint("Radius", 75, Q("0.2 in")),
    Sketcher.Constraint("Radius", 77, Q("0.2 in")),
    Sketcher.Constraint("Radius", 79, Q("0.2 in")),
    Sketcher.Constraint("Radius", 81, Q("0.2 in")),
    Sketcher.Constraint("Radius", 83, Q("0.2 in")),
    Sketcher.Constraint("Radius", 85, Q("0.2 in")),
    Sketcher.Constraint("Radius", 87, Q("0.2 in")),
    Sketcher.Constraint("Radius", 89, Q("0.2 in")),
    Sketcher.Constraint("DistanceX", 13, 3, -1, 1, Q("0.7 in")),
    Sketcher.Constraint("DistanceX", -1, 1, 27, 3, Q("0.7 in")),
    Sketcher.Constraint("DistanceY", -1, 1, 59, 3, Q("5.3804001 in")),
    Sketcher.Constraint("DistanceY", 9, 1, -1, 1, Q("3.9536002 in")),
    Sketcher.Constraint("Distance", 46, Q("30.101401 mm")),
    Sketcher.Constraint("Distance", 80, Q("60.1848 mm")),
    Sketcher.Constraint("DistanceX", 60, 1, 60, 2, Q("150.116238 mm")),
    Sketcher.Constraint("DistanceY", 12, 2, 12, 1, Q("117.73156 mm")),
    Sketcher.Constraint("DistanceY", 28, 1, 28, 2, Q("117.73156 mm")),
    Sketcher.Constraint("DistanceY", 23, 3, -1, 1, Q("70.987699 mm")),
    Sketcher.Constraint("DistanceY", -1, 1, 47, 3, Q("93.631799 mm")),
    Sketcher.Constraint("DistanceX", 5, 1, -1, 1, Q("33.192301 mm")),
    Sketcher.Constraint("DistanceX", 16, 2, -1, 1, Q("22.417999 mm")),
    Sketcher.Constraint("DistanceY", 18, 2, -1, 1, Q("100.4045 mm")),
    Sketcher.Constraint("DistanceX", -1, 1, 29, 1, Q("22.417999 mm")),
    Sketcher.Constraint("DistanceX", -1, 1, 32, 2, Q("33.192301 mm")),
    Sketcher.Constraint("DistanceX", 43, 1, -1, 1, Q("169.229599 mm")),
    Sketcher.Constraint("DistanceY", -1, 1, 46, 2, Q("94.707299 mm")),
    Sketcher.Constraint("DistanceX", -1, 1, 70, 2, Q("82.436999 mm")),
    Sketcher.Constraint("DistanceX", -1, 1, 77, 1, Q("96.262399 mm")),
    Sketcher.Constraint("DistanceY", -1, 1, 78, 2, Q("1.646101 mm")),
    Sketcher.Constraint("Distance", 0, Q("148.858539 mm")),
    Sketcher.Constraint("Distance", 2, Q("97.963571 mm")),
    Sketcher.Constraint("Distance", 6, Q("141.305381 mm")),
    Sketcher.Constraint("Distance", 8, Q("74.719442 mm")),
    Sketcher.Constraint("Distance", 14, Q("64.45853 mm")),
    Sketcher.Constraint("Distance", 26, Q("64.45853 mm")),
    Sketcher.Constraint("Distance", 30, Q("97.709139 mm")),
    Sketcher.Constraint("Distance", 38, Q("21.70341 mm")),
    Sketcher.Constraint("Distance", 40, Q("76.290281 mm")),
    Sketcher.Constraint("Distance", 44, Q("115.318532 mm")),
    Sketcher.Constraint("Distance", 54, Q("49.31507 mm")),
    Sketcher.Constraint("Distance", 62, Q("106.485919 mm")),
    Sketcher.Constraint("Distance", 66, Q("136.246662 mm")),
    Sketcher.Constraint("Distance", 70, Q("112.582089 mm")),
    Sketcher.Constraint("Distance", 72, Q("81.928538 mm")),
    Sketcher.Constraint("Distance", 74, Q("163.640468 mm")),
    Sketcher.Constraint("Distance", 84, Q("70.850039 mm")),
    Sketcher.Constraint("Distance", 86, Q("52.45262 mm")),
    Sketcher.Constraint("DistanceY", 3, 3, -1, 1, Q("110.901418 mm")),
    Sketcher.Constraint("DistanceX", 5, 3, -1, 1, Q("30.323742 mm")),
    Sketcher.Constraint("DistanceX", 7, 3, -1, 1, Q("26.35836 mm")),
    Sketcher.Constraint("DistanceY", 7, 3, -1, 1, Q("27.259349 mm")),
    Sketcher.Constraint("DistanceX", 9, 3, -1, 1, Q("56.842229 mm")),
    Sketcher.Constraint("DistanceX", 15, 3, -1, 1, Q("44.095141 mm")),
    Sketcher.Constraint("DistanceX", -1, 1, 19, 3, Q("56.834049 mm")),
    Sketcher.Constraint("DistanceX", -1, 1, 21, 3, Q("26.35836 mm")),
    Sketcher.Constraint("DistanceY", 21, 3, -1, 1, Q("27.259349 mm")),
    Sketcher.Constraint("DistanceX", -1, 1, 25, 3, Q("44.095141 mm")),
    Sketcher.Constraint("DistanceX", -1, 1, 33, 3, Q("30.323742 mm")),
    Sketcher.Constraint("DistanceX", -1, 1, 35, 3, Q("57.85205 mm")),
    Sketcher.Constraint("DistanceY", -1, 1, 37, 3, Q("100.85861 mm")),
    Sketcher.Constraint("DistanceX", 39, 3, -1, 1, Q("110.666369 mm")),
    Sketcher.Constraint("DistanceX", 43, 3, -1, 1, Q("164.43854 mm")),
    Sketcher.Constraint("DistanceY", -1, 1, 43, 3, Q("14.291419 mm")),
    Sketcher.Constraint("DistanceY", -1, 1, 45, 3, Q("123.050861 mm")),
    Sketcher.Constraint("DistanceX", 47, 3, -1, 1, Q("119.728409 mm")),
    Sketcher.Constraint("DistanceX", 49, 3, -1, 1, Q("108.800018 mm")),
    Sketcher.Constraint("DistanceY", -1, 1, 49, 3, Q("81.98217 mm")),
    Sketcher.Constraint("DistanceX", 53, 3, -1, 1, Q("176.843859 mm")),
    Sketcher.Constraint("DistanceX", 55, 3, -1, 1, Q("37.719719 mm")),
    Sketcher.Constraint("DistanceX", 59, 3, -1, 1, Q("77.461611 mm")),
    Sketcher.Constraint("DistanceX", 63, 3, -1, 1, Q("29.537981 mm")),
    Sketcher.Constraint("DistanceY", -1, 1, 67, 3, Q("35.911239 mm")),
    Sketcher.Constraint("DistanceY", -1, 1, 69, 3, Q("107.120462 mm")),
    Sketcher.Constraint("DistanceX", -1, 1, 73, 3, Q("125.658361 mm")),
    Sketcher.Constraint("DistanceY", 75, 3, -1, 1, Q("30.025619 mm")),
    Sketcher.Constraint("DistanceX", -1, 1, 77, 3, Q("101.108978 mm")),
    Sketcher.Constraint("DistanceY", -1, 1, 77, 3, Q("46.143289 mm")),
    Sketcher.Constraint("DistanceX", -1, 1, 79, 3, Q("37.60169 mm")),
    Sketcher.Constraint("DistanceY", -1, 1, 79, 3, Q("6.477469 mm")),
    Sketcher.Constraint("DistanceY", 83, 3, -1, 1, Q("34.025171 mm")),
    Sketcher.Constraint("DistanceX", 0, 2, -1, 1, Q("156.047041 mm")),
    Sketcher.Constraint("DistanceY", 0, 2, -1, 1, Q("92.565981 mm")),
    Sketcher.Constraint("DistanceX", 1, 1, -1, 1, Q("152.010269 mm")),
    Sketcher.Constraint("DistanceX", 2, 2, -1, 1, Q("56.672189 mm")),
    Sketcher.Constraint("DistanceX", 3, 1, -1, 1, Q("53.20302 mm")),
    Sketcher.Constraint("DistanceX", 4, 2, -1, 1, Q("25.686359 mm")),
    Sketcher.Constraint("DistanceY", 6, 2, -1, 1, Q("22.427982 mm")),
    Sketcher.Constraint("DistanceX", 7, 1, -1, 1, Q("21.720362 mm")),
    Sketcher.Constraint("DistanceX", 8, 2, -1, 1, Q("52.20423 mm")),
    Sketcher.Constraint("DistanceX", 11, 1, -1, 1, Q("162.31757 mm")),
    Sketcher.Constraint("DistanceY", 14, 2, -1, 1, Q("106.38044 mm")),
    Sketcher.Constraint("DistanceX", 15, 1, -1, 1, Q("48.733139 mm")),
    Sketcher.Constraint("DistanceY", 16, 2, -1, 1, Q("43.344741 mm")),
    Sketcher.Constraint("DistanceX", -1, 1, 19, 1, Q("52.196051 mm")),
    Sketcher.Constraint("DistanceX", -1, 1, 20, 2, Q("21.720362 mm")),
    Sketcher.Constraint("DistanceY", 21, 1, -1, 1, Q("22.427982 mm")),
    Sketcher.Constraint("DistanceX", -1, 1, 22, 2, Q("162.51019 mm")),
    Sketcher.Constraint("DistanceY", 22, 2, -1, 1, Q("66.156332 mm")),
    Sketcher.Constraint("DistanceX", -1, 1, 24, 2, Q("48.733139 mm")),
    Sketcher.Constraint("DistanceY", 25, 1, -1, 1, Q("106.38044 mm")),
    Sketcher.Constraint("DistanceY", 29, 1, -1, 1, Q("43.344741 mm")),
    Sketcher.Constraint("DistanceY", 30, 2, -1, 1, Q("83.571719 mm")),
    Sketcher.Constraint("DistanceY", 32, 2, -1, 1, Q("176.62297 mm")),
    Sketcher.Constraint("DistanceX", -1, 1, 33, 1, Q("25.686359 mm")),
    Sketcher.Constraint("DistanceX", -1, 1, 35, 1, Q("56.689611 mm")),
    Sketcher.Constraint("DistanceY", 35, 1, -1, 1, Q("105.930159 mm")),
    Sketcher.Constraint("DistanceX", 36, 2, -1, 1, Q("109.675191 mm")),
    Sketcher.Constraint("DistanceY", -1, 1, 36, 2, Q("97.278148 mm")),
    Sketcher.Constraint("DistanceY", -1, 1, 37, 1, Q("99.78311 mm")),
    Sketcher.Constraint("DistanceX", 40, 2, -1, 1, Q("61.714261 mm")),
    Sketcher.Constraint("DistanceY", -1, 1, 41, 1, Q("56.769451 mm")),
    Sketcher.Constraint("DistanceX", 42, 2, -1, 1, Q("160.012872 mm")),
    Sketcher.Constraint("DistanceX", 44, 2, -1, 1, Q("130.892312 mm")),
    Sketcher.Constraint("DistanceX", 47, 1, -1, 1, Q("115.302741 mm")),
    Sketcher.Constraint("DistanceY", -1, 1, 51, 1, Q("2.584238 mm")),
    Sketcher.Constraint("DistanceY", 52, 2, -1, 1, Q("43.596422 mm")),
    Sketcher.Constraint("DistanceY", 53, 1, -1, 1, Q("36.271089 mm")),
    Sketcher.Constraint("DistanceX", 54, 2, -1, 1, Q("34.711939 mm")),
    Sketcher.Constraint("DistanceY", -1, 1, 54, 2, Q("111.557422 mm")),
    Sketcher.Constraint("DistanceY", -1, 1, 55, 1, Q("109.177479 mm")),
    Sketcher.Constraint("DistanceX", 56, 2, -1, 1, Q("16.052111 mm")),
    Sketcher.Constraint("DistanceX", 58, 2, -1, 1, Q("81.541129 mm")),
    Sketcher.Constraint("DistanceX", -1, 1, 61, 1, Q("72.109238 mm")),
    Sketcher.Constraint("DistanceY", -1, 1, 61, 1, Q("152.502228 mm")),
    Sketcher.Constraint("DistanceX", 63, 1, -1, 1, Q("32.545761 mm")),
    Sketcher.Constraint("DistanceY", -1, 1, 64, 2, Q("153.17355 mm")),
    Sketcher.Constraint("DistanceX", -1, 1, 66, 2, Q("8.22356 mm")),
    Sketcher.Constraint("DistanceY", -1, 1, 66, 2, Q("32.92529 mm")),
    Sketcher.Constraint("DistanceX", 67, 1, -1, 1, Q("0.66839 mm")),
    Sketcher.Constraint("DistanceX", 68, 2, -1, 1, Q("26.189671 mm")),
    Sketcher.Constraint("DistanceY", -1, 1, 68, 2, Q("105.406548 mm")),
    Sketcher.Constraint("DistanceX", 69, 1, -1, 1, Q("23.168061 mm")),
    Sketcher.Constraint("DistanceX", -1, 1, 71, 1, Q("88.307338 mm")),
    Sketcher.Constraint("DistanceX", -1, 1, 72, 2, Q("120.811781 mm")),
    Sketcher.Constraint("DistanceX", -1, 1, 73, 1, Q("130.449421 mm")),
    Sketcher.Constraint("DistanceY", 74, 2, -1, 1, Q("28.336788 mm")),
    Sketcher.Constraint("DistanceX", -1, 1, 75, 1, Q("176.533019 mm")),
    Sketcher.Constraint("DistanceX", -1, 1, 76, 2, Q("97.581871 mm")),
    Sketcher.Constraint("DistanceX", -1, 1, 79, 1, Q("35.17531 mm")),
    Sketcher.Constraint("DistanceY", -1, 1, 81, 1, Q("38.879709 mm")),
    Sketcher.Constraint("DistanceY", 82, 2, -1, 1, Q("30.369228 mm")),
    Sketcher.Constraint("DistanceX", -1, 1, 83, 1, Q("160.686191 mm")),
    Sketcher.Constraint("DistanceY", 83, 1, -1, 1, Q("38.856538 mm")),
    Sketcher.Constraint("Distance", 4, Q("67.401634 mm")),
    Sketcher.Constraint("Distance", 10, Q("106.766963 mm")),
    Sketcher.Constraint("Distance", 16, Q("64.501413 mm")),
    Sketcher.Constraint("Distance", 18, Q("106.943852 mm")),
    Sketcher.Constraint("Distance", 20, Q("74.699392 mm")),
    Sketcher.Constraint("Distance", 24, Q("64.501413 mm")),
    Sketcher.Constraint("Distance", 32, Q("148.604347 mm")),
    Sketcher.Constraint("Distance", 34, Q("67.430165 mm")),
    Sketcher.Constraint("Distance", 36, Q("57.103496 mm")),
    Sketcher.Constraint("Distance", 48, Q("138.599627 mm")),
    Sketcher.Constraint("Distance", 50, Q("105.113516 mm")),
    Sketcher.Constraint("Distance", 52, Q("149.443754 mm")),
    Sketcher.Constraint("Distance", 56, Q("50.048128 mm")),
    Sketcher.Constraint("Distance", 58, Q("95.027453 mm")),
    Sketcher.Constraint("Distance", 64, Q("62.329038 mm")),
    Sketcher.Constraint("Distance", 82, Q("99.737433 mm")),
    Sketcher.Constraint("Distance", 88, Q("114.518865 mm")),
    Sketcher.Constraint("DistanceX", 11, 3, -1, 1, Q("160.747764 mm")),
    Sketcher.Constraint("DistanceY", 13, 3, -1, 1, Q("163.148827 mm")),
    Sketcher.Constraint("DistanceY", 27, 3, -1, 1, Q("163.148827 mm")),
    Sketcher.Constraint("DistanceX", -1, 1, 31, 3, Q("152.968694 mm")),
    Sketcher.Constraint("DistanceY", -1, 1, 39, 3, Q("122.070047 mm")),
    Sketcher.Constraint("DistanceX", 41, 3, -1, 1, Q("65.824067 mm")),
    Sketcher.Constraint("DistanceX", 51, 3, -1, 1, Q("34.714403 mm")),
    Sketcher.Constraint("DistanceY", -1, 1, 51, 3, Q("7.415605 mm")),
    Sketcher.Constraint("DistanceX", 57, 3, -1, 1, Q("20.834255 mm")),
    Sketcher.Constraint("DistanceX", -1, 1, 61, 3, Q("70.348705 mm")),
    Sketcher.Constraint("DistanceY", -1, 1, 63, 3, Q("120.363464 mm")),
    Sketcher.Constraint("DistanceX", -1, 1, 81, 3, Q("90.477587 mm")),
    Sketcher.Constraint("DistanceX", -1, 1, 85, 3, Q("86.469135 mm")),
    Sketcher.Constraint("DistanceY", -1, 1, 85, 3, Q("50.391135 mm")),
    Sketcher.Constraint("DistanceX", -1, 1, 87, 3, Q("40.386414 mm")),
    Sketcher.Constraint("DistanceY", -1, 1, 87, 3, Q("25.337987 mm")),
    Sketcher.Constraint("DistanceX", -1, 1, 89, 3, Q("107.698914 mm")),
    Sketcher.Constraint("DistanceY", -1, 1, 89, 3, Q("117.985695 mm")),
    Sketcher.Constraint("DistanceY", 12, 2, -1, 1, Q("163.148827 mm")),
    Sketcher.Constraint("DistanceY", 27, 1, -1, 1, Q("163.148827 mm")),
    Sketcher.Constraint("DistanceX", 49, 1, -1, 1, Q("105.196313 mm")),
    Sketcher.Constraint("DistanceX", -1, 1, 60, 2, Q("70.348705 mm")),
    Sketcher.Constraint("DistanceX", -1, 1, 84, 2, Q("91.315715 mm")),
    Sketcher.Constraint("DistanceX", -1, 1, 85, 1, Q("88.895515 mm")),
    Sketcher.Constraint("DistanceX", -1, 1, 87, 1, Q("36.276608 mm")),
])
pocket2 = body.newObject("PartDesign::Pocket", "Pocket001")
pocket2.Profile = sketch3
pocket2.Type = "ThroughAll"
pocket2.Reversed = True

doc.recompute()
